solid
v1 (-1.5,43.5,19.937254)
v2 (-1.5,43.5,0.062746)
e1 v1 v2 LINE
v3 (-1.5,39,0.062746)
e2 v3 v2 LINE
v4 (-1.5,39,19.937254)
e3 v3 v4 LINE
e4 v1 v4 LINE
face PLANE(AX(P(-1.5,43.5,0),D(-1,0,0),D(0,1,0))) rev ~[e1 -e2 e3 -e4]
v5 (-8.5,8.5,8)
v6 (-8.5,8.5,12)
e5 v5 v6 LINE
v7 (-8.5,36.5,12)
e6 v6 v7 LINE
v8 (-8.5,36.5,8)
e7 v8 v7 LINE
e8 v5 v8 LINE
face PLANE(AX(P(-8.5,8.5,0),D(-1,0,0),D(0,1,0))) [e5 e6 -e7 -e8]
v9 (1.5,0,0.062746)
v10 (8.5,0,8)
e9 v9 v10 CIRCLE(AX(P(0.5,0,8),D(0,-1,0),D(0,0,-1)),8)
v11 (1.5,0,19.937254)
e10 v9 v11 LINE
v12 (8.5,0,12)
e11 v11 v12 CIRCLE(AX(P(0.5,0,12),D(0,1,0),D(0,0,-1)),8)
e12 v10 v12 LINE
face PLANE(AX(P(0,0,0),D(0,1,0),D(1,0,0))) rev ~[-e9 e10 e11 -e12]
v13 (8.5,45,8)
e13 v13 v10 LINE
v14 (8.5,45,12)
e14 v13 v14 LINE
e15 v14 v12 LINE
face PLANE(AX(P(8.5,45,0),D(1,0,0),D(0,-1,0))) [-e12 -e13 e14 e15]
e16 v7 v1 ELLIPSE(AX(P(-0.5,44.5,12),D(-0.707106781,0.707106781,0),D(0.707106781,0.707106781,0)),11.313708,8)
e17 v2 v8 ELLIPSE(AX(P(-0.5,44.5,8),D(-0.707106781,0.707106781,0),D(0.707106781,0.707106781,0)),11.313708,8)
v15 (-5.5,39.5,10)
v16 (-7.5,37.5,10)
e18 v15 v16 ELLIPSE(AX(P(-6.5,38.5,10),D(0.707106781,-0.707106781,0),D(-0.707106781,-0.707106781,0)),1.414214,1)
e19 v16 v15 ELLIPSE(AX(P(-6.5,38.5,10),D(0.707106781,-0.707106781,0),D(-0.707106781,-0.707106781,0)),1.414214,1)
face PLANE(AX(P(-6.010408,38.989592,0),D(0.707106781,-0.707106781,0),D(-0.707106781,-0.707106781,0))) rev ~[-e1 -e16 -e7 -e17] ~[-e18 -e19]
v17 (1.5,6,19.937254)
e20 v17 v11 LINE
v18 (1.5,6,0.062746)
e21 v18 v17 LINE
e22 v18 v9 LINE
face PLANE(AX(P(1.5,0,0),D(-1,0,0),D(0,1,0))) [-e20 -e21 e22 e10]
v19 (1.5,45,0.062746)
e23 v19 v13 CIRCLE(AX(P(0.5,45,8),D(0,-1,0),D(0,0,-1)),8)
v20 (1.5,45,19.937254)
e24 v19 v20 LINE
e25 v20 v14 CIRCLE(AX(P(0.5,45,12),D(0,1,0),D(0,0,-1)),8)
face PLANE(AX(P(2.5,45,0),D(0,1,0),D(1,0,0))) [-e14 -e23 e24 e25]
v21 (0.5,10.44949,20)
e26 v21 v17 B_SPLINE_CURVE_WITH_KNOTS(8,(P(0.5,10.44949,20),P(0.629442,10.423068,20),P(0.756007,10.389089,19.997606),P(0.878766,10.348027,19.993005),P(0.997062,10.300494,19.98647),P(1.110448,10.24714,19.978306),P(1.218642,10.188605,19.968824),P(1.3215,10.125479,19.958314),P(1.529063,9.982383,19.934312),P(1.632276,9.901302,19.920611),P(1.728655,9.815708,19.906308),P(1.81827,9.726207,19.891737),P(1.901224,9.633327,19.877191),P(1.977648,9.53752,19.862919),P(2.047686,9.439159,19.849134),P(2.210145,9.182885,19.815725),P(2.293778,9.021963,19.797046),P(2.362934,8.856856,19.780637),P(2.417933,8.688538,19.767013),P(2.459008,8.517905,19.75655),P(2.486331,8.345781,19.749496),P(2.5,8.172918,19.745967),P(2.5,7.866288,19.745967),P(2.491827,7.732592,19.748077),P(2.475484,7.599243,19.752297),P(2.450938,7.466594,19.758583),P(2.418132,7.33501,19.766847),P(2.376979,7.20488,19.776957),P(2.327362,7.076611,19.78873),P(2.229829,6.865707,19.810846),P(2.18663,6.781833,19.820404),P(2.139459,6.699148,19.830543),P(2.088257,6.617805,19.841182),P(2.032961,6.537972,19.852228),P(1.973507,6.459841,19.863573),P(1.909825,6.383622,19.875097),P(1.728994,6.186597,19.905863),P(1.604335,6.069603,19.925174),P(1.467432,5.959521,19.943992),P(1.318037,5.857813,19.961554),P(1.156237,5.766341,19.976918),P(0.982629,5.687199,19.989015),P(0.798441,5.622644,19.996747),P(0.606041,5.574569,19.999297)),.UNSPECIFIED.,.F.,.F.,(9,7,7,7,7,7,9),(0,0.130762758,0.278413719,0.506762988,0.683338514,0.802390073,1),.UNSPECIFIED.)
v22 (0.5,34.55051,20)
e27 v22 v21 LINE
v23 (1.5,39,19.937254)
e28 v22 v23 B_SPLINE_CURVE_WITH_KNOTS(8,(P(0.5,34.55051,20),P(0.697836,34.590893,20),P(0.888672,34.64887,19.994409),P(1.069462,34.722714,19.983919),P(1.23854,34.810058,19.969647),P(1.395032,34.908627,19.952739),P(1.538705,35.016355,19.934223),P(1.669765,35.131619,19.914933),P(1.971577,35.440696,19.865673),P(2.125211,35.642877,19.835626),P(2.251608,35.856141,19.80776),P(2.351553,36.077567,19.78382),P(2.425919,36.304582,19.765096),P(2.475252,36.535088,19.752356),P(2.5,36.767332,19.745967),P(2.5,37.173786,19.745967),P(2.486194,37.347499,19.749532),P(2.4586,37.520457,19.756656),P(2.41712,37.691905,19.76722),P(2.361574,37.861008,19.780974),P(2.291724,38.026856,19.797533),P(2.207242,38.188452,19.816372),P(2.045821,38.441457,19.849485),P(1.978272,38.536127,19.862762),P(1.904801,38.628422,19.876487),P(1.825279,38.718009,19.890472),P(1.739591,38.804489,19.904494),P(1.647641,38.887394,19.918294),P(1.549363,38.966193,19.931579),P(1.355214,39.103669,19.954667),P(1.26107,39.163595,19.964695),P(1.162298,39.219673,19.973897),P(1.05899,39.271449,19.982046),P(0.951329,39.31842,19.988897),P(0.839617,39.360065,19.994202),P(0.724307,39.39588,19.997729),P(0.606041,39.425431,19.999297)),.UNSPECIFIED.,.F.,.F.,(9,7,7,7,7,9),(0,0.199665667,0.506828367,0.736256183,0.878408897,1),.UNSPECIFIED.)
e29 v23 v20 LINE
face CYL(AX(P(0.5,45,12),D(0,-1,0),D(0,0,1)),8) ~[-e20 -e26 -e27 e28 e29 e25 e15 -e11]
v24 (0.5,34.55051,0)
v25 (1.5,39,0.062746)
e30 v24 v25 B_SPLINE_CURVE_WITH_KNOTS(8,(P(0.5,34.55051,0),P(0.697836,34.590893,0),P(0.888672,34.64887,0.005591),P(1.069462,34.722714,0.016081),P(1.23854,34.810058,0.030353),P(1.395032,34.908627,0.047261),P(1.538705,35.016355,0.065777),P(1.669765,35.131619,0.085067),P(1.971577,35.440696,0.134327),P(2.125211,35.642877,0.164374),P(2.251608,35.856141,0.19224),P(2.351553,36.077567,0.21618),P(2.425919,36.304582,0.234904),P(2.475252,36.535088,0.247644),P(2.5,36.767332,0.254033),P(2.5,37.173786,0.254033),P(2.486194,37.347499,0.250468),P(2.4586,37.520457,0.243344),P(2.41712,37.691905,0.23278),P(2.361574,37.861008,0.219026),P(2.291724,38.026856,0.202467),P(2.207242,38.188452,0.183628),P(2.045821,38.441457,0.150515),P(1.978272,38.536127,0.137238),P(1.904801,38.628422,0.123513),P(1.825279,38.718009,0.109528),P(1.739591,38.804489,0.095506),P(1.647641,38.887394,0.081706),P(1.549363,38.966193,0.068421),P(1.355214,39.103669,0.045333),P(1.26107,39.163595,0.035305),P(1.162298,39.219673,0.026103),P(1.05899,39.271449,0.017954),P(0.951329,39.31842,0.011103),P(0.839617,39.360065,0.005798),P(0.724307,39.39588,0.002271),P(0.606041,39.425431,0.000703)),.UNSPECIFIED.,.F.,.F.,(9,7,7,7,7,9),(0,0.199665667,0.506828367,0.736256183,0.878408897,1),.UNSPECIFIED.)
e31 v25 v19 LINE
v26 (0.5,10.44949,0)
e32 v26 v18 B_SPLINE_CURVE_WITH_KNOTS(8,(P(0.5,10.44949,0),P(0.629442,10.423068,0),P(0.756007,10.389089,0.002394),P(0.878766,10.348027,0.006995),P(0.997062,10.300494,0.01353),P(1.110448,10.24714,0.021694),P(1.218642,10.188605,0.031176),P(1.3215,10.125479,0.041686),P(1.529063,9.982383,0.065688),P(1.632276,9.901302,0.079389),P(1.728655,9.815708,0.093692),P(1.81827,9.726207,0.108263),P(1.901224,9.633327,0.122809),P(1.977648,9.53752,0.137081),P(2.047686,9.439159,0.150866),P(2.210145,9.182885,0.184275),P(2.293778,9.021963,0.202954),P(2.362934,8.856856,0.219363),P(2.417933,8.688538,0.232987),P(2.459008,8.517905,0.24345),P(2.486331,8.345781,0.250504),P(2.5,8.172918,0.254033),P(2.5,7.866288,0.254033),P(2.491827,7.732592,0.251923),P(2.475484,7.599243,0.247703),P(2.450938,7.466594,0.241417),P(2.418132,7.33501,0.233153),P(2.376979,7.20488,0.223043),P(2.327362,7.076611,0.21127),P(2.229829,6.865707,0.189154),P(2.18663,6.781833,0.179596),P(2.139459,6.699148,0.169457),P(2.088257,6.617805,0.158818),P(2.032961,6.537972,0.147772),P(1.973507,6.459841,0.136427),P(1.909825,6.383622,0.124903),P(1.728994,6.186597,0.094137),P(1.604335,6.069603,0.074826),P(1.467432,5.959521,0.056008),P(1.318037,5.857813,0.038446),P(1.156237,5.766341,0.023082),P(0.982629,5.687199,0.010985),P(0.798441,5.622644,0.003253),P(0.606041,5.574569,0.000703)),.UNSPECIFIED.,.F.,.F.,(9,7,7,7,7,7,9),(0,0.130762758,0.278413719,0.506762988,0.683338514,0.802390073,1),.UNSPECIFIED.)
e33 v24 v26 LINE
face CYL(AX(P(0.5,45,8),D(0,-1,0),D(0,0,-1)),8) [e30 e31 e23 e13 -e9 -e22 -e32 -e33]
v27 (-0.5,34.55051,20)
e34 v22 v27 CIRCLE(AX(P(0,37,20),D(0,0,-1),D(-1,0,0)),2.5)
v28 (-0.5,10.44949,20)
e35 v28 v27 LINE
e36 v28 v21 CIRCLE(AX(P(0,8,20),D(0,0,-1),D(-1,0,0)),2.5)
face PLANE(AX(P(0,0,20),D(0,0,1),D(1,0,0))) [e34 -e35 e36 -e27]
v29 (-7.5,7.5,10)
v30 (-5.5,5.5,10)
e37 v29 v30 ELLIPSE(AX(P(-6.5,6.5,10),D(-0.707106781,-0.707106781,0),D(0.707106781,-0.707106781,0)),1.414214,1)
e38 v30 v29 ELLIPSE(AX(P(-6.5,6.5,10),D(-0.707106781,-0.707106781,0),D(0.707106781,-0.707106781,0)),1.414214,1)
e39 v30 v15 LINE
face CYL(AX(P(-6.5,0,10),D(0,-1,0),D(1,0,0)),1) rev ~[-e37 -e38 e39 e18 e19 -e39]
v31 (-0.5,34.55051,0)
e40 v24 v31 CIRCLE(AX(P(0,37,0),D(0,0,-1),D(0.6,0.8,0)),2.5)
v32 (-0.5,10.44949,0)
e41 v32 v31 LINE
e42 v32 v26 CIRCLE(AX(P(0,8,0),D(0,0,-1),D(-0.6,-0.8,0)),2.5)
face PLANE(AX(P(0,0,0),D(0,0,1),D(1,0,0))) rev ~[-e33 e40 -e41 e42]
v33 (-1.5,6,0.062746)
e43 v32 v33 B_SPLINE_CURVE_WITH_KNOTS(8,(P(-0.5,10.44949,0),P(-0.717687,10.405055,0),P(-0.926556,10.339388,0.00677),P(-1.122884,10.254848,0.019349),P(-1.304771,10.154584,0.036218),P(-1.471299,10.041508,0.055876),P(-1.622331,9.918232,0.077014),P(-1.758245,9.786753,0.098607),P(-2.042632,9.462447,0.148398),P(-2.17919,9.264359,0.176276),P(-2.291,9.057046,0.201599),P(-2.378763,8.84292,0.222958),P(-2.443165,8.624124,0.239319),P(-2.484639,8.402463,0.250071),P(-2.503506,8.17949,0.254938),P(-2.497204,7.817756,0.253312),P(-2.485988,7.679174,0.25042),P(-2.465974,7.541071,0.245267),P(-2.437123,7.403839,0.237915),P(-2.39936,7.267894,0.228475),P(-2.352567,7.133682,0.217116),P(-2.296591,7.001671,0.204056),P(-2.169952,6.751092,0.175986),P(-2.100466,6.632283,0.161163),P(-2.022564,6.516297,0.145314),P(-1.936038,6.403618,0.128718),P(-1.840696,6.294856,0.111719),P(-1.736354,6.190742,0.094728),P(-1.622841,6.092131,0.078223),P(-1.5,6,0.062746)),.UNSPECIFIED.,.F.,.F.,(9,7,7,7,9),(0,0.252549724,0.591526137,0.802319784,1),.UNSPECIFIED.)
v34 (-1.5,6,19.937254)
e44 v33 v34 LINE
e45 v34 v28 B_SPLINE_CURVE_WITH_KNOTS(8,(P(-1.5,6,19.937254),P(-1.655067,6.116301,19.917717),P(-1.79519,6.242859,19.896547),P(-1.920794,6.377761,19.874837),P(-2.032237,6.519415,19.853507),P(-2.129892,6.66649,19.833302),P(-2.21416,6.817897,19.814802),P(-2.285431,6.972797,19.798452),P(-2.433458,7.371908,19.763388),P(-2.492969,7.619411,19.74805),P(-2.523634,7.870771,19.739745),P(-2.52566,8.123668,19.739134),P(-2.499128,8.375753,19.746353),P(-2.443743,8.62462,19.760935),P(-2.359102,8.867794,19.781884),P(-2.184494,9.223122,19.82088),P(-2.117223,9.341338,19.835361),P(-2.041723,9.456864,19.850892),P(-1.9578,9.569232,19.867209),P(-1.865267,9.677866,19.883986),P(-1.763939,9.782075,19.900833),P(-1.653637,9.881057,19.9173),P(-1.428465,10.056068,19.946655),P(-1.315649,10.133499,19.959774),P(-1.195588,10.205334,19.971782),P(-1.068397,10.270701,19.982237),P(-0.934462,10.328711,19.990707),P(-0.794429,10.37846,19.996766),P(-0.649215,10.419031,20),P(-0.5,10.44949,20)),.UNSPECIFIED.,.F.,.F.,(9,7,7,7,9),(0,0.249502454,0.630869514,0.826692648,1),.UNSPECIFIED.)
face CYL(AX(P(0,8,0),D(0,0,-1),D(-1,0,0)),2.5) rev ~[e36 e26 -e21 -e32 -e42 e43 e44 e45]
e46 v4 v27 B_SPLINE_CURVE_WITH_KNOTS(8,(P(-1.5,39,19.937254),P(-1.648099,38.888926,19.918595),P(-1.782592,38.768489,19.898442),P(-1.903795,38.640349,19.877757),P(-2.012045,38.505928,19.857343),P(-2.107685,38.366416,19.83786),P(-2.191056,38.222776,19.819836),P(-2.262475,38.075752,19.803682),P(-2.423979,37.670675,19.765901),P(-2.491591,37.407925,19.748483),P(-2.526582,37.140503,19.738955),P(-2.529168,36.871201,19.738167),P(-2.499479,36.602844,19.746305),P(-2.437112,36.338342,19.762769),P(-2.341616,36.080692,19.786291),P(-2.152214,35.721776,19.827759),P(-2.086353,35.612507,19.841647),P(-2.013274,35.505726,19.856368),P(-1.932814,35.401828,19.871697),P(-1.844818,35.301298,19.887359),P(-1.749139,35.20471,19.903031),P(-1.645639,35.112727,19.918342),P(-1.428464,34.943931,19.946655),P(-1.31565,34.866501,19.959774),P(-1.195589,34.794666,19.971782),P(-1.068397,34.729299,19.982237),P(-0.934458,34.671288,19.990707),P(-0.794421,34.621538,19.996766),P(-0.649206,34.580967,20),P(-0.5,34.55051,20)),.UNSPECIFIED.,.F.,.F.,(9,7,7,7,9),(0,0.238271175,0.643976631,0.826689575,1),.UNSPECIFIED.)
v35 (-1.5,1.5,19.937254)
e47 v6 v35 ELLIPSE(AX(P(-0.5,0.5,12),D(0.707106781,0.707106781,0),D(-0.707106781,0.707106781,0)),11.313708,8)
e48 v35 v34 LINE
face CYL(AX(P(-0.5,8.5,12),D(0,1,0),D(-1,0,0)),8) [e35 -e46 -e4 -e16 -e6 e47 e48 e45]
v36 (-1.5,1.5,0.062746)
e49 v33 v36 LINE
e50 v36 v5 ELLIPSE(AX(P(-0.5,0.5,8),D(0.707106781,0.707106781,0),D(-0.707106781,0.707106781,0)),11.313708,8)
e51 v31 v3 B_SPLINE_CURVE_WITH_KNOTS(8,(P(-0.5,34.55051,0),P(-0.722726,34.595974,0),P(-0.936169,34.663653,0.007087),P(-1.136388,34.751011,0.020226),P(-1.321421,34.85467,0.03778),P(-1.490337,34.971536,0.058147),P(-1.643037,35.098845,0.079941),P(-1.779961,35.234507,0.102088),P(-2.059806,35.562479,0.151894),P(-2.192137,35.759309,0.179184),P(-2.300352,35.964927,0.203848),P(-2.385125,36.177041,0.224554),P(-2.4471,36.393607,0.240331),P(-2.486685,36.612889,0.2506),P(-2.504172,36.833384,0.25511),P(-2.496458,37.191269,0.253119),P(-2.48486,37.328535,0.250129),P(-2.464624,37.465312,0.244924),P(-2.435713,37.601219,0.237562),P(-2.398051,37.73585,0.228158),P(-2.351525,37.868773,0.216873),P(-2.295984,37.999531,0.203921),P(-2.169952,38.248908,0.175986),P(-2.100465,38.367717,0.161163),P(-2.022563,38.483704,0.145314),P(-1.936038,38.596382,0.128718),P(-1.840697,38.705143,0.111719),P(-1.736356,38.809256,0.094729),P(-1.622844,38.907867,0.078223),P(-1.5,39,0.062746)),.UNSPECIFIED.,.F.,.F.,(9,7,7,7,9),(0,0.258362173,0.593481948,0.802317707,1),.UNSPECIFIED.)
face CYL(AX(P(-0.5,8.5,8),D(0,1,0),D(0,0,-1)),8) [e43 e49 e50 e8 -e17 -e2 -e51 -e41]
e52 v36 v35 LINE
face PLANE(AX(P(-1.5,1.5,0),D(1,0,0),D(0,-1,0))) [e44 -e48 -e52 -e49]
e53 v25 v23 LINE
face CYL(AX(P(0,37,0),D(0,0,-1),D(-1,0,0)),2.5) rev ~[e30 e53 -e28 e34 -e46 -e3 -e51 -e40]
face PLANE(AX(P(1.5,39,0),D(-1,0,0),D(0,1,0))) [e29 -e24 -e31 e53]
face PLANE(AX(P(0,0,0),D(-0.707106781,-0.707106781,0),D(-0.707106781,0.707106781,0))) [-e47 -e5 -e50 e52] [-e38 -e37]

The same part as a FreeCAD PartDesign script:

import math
import FreeCAD as App
import Part
import Sketcher

V = App.Vector
Q = App.Units.Quantity


def edges_at(feature, points):
    """Names of the edges that pass closest to the given points."""
    edges = feature.Shape.Edges
    near = lambda p: min(range(len(edges)), key=lambda i: edges[i].distToShape(Part.Vertex(*p))[0])
    return sorted({f"Edge{near(p) + 1}" for p in points})


def add_polygon(sketch, points):
    """Adds a closed chain of lines whose ends are joined by coincident constraints."""
    first, n = sketch.GeometryCount, len(points)
    for a, b in zip(points, points[1:] + points[:1]):
        sketch.addGeometry(Part.LineSegment(App.Vector(*a, 0), App.Vector(*b, 0)), False)
    for i in range(n):
        sketch.addConstraint(Sketcher.Constraint("Coincident", first + i, 2, first + (i + 1) % n, 1))

doc = App.newDocument("Part")
body = doc.addObject("PartDesign::Body", "Body")

sketch1 = body.newObject("Sketcher::SketchObject", "Sketch")
sketch1.AttachmentSupport = (doc.getObject("XY_Plane"), [""])
sketch1.MapMode = "FlatFace"
add_polygon(sketch1, [(0, 0), (8.5, 0), (8.5, 45), (0, 45), (-8.5, 36.5), (-8.5, 8.5)])
sketch1.addConstraint(Sketcher.Constraint("Horizontal", 0))
sketch1.addConstraint(Sketcher.Constraint("Vertical", 1))
sketch1.addConstraint(Sketcher.Constraint("Horizontal", 2))
sketch1.addConstraint(Sketcher.Constraint("Vertical", 4))
sketch1.addConstraint(Sketcher.Constraint("Coincident", 5, 2, -1, 1))
sketch1.addConstraint(Sketcher.Constraint("PointOnObject", 2, 2, -2))
sketch1.addConstraint(Sketcher.Constraint("Perpendicular", 3, 5))
sketch1.addConstraint(Sketcher.Constraint("Equal", 3, 5))
sketch1.addConstraint(Sketcher.Constraint("DistanceY", 1, 1, 1, 2, Q("45 mm")))
sketch1.addConstraint(Sketcher.Constraint("DistanceX", 3, 2, 1, 2, Q("17 mm")))
sketch1.addConstraint(Sketcher.Constraint("DistanceY", 4, 2, 4, 1, Q("28 mm")))
pad1 = body.newObject("PartDesign::Pad", "Pad")
pad1.Profile = sketch1
pad1.Length = 20

sketch2 = body.newObject("Sketcher::SketchObject", "Sketch001")
sketch2.AttachmentSupport = (doc.getObject("XY_Plane"), [""])
sketch2.MapMode = "FlatFace"
sketch2.addGeometry(Part.LineSegment(V(1.5, 0, 0), V(-1.5, 0, 0)), False)
sketch2.addGeometry(Part.LineSegment(V(-1.5, 0, 0), V(-1.5, 6, 0)), False)
sketch2.addGeometry(Part.ArcOfCircle(Part.Circle(V(0, 8, 0), V(0, 0, 1), 2.5), math.radians(-53.130102), math.radians(233.130102)), False)
sketch2.addGeometry(Part.LineSegment(V(1.5, 6, 0), V(1.5, 0, 0)), False)
sketch2.addGeometry(Part.LineSegment(V(-1.5, 45, 0), V(1.5, 45, 0)), False)
sketch2.addGeometry(Part.LineSegment(V(1.5, 45, 0), V(1.5, 39, 0)), False)
sketch2.addGeometry(Part.ArcOfCircle(Part.Circle(V(0, 37, 0), V(0, 0, 1), 2.5), math.radians(126.869898), math.radians(413.130102)), False)
sketch2.addGeometry(Part.LineSegment(V(-1.5, 39, 0), V(-1.5, 45, 0)), False)
sketch2.addConstraint(Sketcher.Constraint("Coincident", 0, 2, 1, 1))
sketch2.addConstraint(Sketcher.Constraint("Coincident", 1, 2, 2, 2))
sketch2.addConstraint(Sketcher.Constraint("Coincident", 2, 1, 3, 1))
sketch2.addConstraint(Sketcher.Constraint("Coincident", 3, 2, 0, 1))
sketch2.addConstraint(Sketcher.Constraint("Coincident", 4, 2, 5, 1))
sketch2.addConstraint(Sketcher.Constraint("Coincident", 5, 2, 6, 2))
sketch2.addConstraint(Sketcher.Constraint("Coincident", 6, 1, 7, 1))
sketch2.addConstraint(Sketcher.Constraint("Coincident", 7, 2, 4, 1))
sketch2.addConstraint(Sketcher.Constraint("Horizontal", 0))
sketch2.addConstraint(Sketcher.Constraint("Vertical", 1))
sketch2.addConstraint(Sketcher.Constraint("Vertical", 3))
sketch2.addConstraint(Sketcher.Constraint("Horizontal", 4))
sketch2.addConstraint(Sketcher.Constraint("Vertical", 5))
sketch2.addConstraint(Sketcher.Constraint("Vertical", 7))
sketch2.addConstraint(Sketcher.Constraint("Equal", 2, 6))
sketch2.addConstraint(Sketcher.Constraint("Symmetric", 0, 2, 3, 2, -1, 1))
sketch2.addConstraint(Sketcher.Constraint("Symmetric", 5, 2, 6, 1, -2))
sketch2.addConstraint(Sketcher.Constraint("PointOnObject", 2, 3, -2))
sketch2.addConstraint(Sketcher.Constraint("Vertical", 3, 2, 4, 2))
sketch2.addConstraint(Sketcher.Constraint("Equal", 3, 5))
sketch2.addConstraint(Sketcher.Constraint("Radius", 2, Q("2.5 mm")))
sketch2.addConstraint(Sketcher.Constraint("DistanceX", 0, 2, 0, 1, Q("3 mm")))
sketch2.addConstraint(Sketcher.Constraint("DistanceY", -1, 1, 2, 3, Q("8 mm")))
sketch2.addConstraint(Sketcher.Constraint("DistanceY", -1, 1, 6, 3, Q("37 mm")))
pocket1 = body.newObject("PartDesign::Pocket", "Pocket")
pocket1.Profile = sketch2
pocket1.Type = "ThroughAll"
pocket1.Reversed = True
doc.recompute()

fillet = body.newObject("PartDesign::Fillet", "Fillet")
fillet.Base = (pocket1, edges_at(pocket1, [
    (8.5, 22.5, 0),
    (8.5, 22.5, 20),
    (-8.5, 22.5, 0),
    (-8.5, 22.5, 20),
]))
fillet.Radius = 8

sketch3 = body.newObject("Sketcher::SketchObject", "Sketch002")
sketch3.AttachmentSupport = (doc.getObject("XZ_Plane"), [""])
sketch3.MapMode = "FlatFace"
sketch3.addGeometry(Part.Circle(V(-6.5, 10, 0), V(0, 0, 1), 1), False)
sketch3.addConstraint(Sketcher.Constraint("Diameter", 0, Q("2 mm")))
sketch3.addConstraint(Sketcher.Constraint("DistanceY", -1, 1, 0, 3, Q("10 mm")))
sketch3.addConstraint(Sketcher.Constraint("DistanceX", 0, 3, -1, 1, Q("6.5 mm")))
pocket2 = body.newObject("PartDesign::Pocket", "Pocket001")
pocket2.Profile = sketch3
pocket2.Type = "ThroughAll"

doc.recompute()
